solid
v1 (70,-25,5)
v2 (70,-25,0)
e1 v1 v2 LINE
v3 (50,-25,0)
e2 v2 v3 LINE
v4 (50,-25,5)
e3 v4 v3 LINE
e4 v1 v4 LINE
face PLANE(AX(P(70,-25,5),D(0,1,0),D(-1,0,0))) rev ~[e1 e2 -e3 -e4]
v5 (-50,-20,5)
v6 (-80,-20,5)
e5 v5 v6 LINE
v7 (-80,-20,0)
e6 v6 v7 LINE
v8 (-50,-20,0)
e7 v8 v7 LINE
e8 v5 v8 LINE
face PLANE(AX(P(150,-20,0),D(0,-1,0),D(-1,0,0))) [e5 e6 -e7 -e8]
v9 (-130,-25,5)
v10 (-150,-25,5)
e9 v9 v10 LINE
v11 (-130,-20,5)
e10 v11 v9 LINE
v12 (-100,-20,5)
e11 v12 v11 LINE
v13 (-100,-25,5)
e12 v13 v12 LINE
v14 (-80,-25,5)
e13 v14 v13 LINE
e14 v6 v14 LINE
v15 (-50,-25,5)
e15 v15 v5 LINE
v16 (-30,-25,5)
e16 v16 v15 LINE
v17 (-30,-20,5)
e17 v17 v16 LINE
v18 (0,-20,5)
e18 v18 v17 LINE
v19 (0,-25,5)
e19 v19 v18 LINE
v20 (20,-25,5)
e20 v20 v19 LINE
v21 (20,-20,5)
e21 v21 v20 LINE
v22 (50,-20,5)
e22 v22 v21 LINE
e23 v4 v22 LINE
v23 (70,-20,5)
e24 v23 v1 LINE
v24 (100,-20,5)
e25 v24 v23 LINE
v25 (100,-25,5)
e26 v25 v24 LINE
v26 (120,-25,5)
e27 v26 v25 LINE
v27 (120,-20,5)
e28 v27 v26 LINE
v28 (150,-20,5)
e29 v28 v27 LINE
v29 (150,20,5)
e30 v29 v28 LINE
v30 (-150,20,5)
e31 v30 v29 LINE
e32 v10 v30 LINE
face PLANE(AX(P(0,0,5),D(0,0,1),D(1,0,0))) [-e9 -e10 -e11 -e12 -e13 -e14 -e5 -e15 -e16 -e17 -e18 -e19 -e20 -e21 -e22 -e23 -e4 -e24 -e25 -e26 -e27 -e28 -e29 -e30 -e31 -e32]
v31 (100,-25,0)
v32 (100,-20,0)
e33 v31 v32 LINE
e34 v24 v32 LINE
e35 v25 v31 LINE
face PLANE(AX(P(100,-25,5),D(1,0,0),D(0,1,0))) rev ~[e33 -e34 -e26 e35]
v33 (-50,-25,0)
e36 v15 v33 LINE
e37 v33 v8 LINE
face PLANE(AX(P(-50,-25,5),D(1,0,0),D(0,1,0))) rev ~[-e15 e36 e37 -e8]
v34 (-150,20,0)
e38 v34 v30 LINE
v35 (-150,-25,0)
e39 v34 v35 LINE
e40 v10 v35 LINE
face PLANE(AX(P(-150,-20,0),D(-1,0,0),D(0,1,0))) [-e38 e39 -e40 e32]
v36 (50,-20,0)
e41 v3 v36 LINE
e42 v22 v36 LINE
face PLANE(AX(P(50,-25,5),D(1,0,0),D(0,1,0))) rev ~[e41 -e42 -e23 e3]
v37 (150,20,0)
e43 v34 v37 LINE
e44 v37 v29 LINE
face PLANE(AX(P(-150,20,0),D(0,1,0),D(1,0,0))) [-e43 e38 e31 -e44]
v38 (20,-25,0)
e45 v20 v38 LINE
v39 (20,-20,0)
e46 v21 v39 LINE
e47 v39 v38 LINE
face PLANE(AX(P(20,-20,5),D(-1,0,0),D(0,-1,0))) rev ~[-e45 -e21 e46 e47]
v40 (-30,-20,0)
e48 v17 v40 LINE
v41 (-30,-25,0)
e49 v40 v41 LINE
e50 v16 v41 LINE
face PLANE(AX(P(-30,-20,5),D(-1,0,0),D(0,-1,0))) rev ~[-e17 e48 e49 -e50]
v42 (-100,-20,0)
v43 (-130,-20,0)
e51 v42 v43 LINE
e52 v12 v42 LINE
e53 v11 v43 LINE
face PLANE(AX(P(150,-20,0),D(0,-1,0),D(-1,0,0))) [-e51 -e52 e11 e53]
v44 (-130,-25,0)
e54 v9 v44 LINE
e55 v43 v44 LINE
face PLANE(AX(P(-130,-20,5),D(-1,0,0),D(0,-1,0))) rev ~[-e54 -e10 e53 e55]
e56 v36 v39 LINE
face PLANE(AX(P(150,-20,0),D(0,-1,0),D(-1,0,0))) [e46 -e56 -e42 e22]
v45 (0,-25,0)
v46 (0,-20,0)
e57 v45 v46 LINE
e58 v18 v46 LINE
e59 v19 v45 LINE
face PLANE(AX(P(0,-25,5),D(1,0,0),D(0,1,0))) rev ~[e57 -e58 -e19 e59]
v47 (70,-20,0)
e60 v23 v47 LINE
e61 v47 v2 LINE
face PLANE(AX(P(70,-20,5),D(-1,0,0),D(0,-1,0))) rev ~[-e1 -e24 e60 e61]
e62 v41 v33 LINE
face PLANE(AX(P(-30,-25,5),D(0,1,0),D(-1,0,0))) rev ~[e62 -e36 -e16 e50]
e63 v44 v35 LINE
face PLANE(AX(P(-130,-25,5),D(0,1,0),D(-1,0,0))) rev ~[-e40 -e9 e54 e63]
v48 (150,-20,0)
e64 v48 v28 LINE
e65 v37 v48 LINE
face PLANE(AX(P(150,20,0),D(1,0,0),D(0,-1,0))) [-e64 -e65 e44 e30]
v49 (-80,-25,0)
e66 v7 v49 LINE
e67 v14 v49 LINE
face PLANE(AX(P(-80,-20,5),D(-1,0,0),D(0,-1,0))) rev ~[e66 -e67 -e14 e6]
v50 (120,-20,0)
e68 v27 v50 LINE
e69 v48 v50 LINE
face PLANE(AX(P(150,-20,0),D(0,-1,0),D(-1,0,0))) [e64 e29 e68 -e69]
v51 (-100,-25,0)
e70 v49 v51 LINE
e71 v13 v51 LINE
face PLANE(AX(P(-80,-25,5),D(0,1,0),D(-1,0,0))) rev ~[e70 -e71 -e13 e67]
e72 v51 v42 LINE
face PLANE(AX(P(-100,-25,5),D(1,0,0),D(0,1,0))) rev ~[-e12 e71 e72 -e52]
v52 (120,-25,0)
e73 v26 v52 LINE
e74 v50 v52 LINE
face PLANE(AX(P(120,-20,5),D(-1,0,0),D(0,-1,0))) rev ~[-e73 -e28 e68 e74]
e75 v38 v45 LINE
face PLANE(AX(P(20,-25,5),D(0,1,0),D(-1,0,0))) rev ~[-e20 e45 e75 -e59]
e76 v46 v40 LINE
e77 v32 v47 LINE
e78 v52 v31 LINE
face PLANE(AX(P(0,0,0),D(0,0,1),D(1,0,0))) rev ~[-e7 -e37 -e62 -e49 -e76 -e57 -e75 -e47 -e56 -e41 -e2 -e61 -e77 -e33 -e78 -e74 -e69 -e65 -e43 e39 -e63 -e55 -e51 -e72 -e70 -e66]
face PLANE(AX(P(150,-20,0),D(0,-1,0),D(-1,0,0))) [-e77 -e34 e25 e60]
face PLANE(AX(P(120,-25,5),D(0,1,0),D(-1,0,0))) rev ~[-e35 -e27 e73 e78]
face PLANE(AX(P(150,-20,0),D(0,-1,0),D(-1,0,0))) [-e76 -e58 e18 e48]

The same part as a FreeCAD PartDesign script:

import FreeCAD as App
import Part
import Sketcher
Q = App.Units.Quantity

doc = App.newDocument("Part")
body = doc.addObject("PartDesign::Body", "Body")

# Sketch on XY plane
sketch1 = body.newObject("Sketcher::SketchObject", "Sketch")
sketch1.AttachmentSupport = (doc.getObject("XY_Plane"), [""])
sketch1.MapMode = "FlatFace"
sketch1.addGeometry(Part.LineSegment(App.Vector(150, 20, 0), App.Vector(-150, 20, 0)), False)
sketch1.addGeometry(Part.LineSegment(App.Vector(-150, 20, 0), App.Vector(-150, -20, 0)), False)
sketch1.addGeometry(Part.LineSegment(App.Vector(-150, -20, 0), App.Vector(150, -20, 0)), False)
sketch1.addGeometry(Part.LineSegment(App.Vector(150, -20, 0), App.Vector(150, 20, 0)), False)
sketch1.addConstraint(Sketcher.Constraint("Coincident", 0, 2, 1, 1))
sketch1.addConstraint(Sketcher.Constraint("Coincident", 1, 2, 2, 1))
sketch1.addConstraint(Sketcher.Constraint("Coincident", 2, 2, 3, 1))
sketch1.addConstraint(Sketcher.Constraint("Coincident", 3, 2, 0, 1))
sketch1.addConstraint(Sketcher.Constraint("Horizontal", 0))
sketch1.addConstraint(Sketcher.Constraint("Vertical", 1))
sketch1.addConstraint(Sketcher.Constraint("Horizontal", 2))
sketch1.addConstraint(Sketcher.Constraint("Vertical", 3))
sketch1.addConstraint(Sketcher.Constraint("Symmetric", 0, 2, 2, 2, -1, 1))
sketch1.addConstraint(Sketcher.Constraint("DistanceX", 0, 2, 0, 1, Q("300 mm")))
sketch1.addConstraint(Sketcher.Constraint("DistanceY", 1, 2, 1, 1, Q("40 mm")))
pad1 = body.newObject("PartDesign::Pad", "Pad")
pad1.Profile = sketch1
pad1.Length = 5

# Sketch on XY plane
sketch2 = body.newObject("Sketcher::SketchObject", "Sketch001")
sketch2.AttachmentSupport = (doc.getObject("XY_Plane"), [""])
sketch2.MapMode = "FlatFace"
sketch2.AttachmentOffset = App.Placement(App.Vector(0, 0, 5), App.Rotation())
sketch2.addGeometry(Part.LineSegment(App.Vector(120, -20, 0), App.Vector(100, -20, 0)), False)
sketch2.addGeometry(Part.LineSegment(App.Vector(100, -20, 0), App.Vector(100, -25, 0)), False)
sketch2.addGeometry(Part.LineSegment(App.Vector(100, -25, 0), App.Vector(120, -25, 0)), False)
sketch2.addGeometry(Part.LineSegment(App.Vector(120, -25, 0), App.Vector(120, -20, 0)), False)
sketch2.addGeometry(Part.LineSegment(App.Vector(70, -20, 0), App.Vector(50, -20, 0)), False)
sketch2.addGeometry(Part.LineSegment(App.Vector(50, -20, 0), App.Vector(50, -25, 0)), False)
sketch2.addGeometry(Part.LineSegment(App.Vector(50, -25, 0), App.Vector(70, -25, 0)), False)
sketch2.addGeometry(Part.LineSegment(App.Vector(70, -25, 0), App.Vector(70, -20, 0)), False)
sketch2.addGeometry(Part.LineSegment(App.Vector(20, -20, 0), App.Vector(0, -20, 0)), False)
sketch2.addGeometry(Part.LineSegment(App.Vector(0, -20, 0), App.Vector(0, -25, 0)), False)
sketch2.addGeometry(Part.LineSegment(App.Vector(0, -25, 0), App.Vector(20, -25, 0)), False)
sketch2.addGeometry(Part.LineSegment(App.Vector(20, -25, 0), App.Vector(20, -20, 0)), False)
sketch2.addGeometry(Part.LineSegment(App.Vector(-30, -20, 0), App.Vector(-50, -20, 0)), False)
sketch2.addGeometry(Part.LineSegment(App.Vector(-50, -20, 0), App.Vector(-50, -25, 0)), False)
sketch2.addGeometry(Part.LineSegment(App.Vector(-50, -25, 0), App.Vector(-30, -25, 0)), False)
sketch2.addGeometry(Part.LineSegment(App.Vector(-30, -25, 0), App.Vector(-30, -20, 0)), False)
sketch2.addGeometry(Part.LineSegment(App.Vector(-80, -20, 0), App.Vector(-100, -20, 0)), False)
sketch2.addGeometry(Part.LineSegment(App.Vector(-100, -20, 0), App.Vector(-100, -25, 0)), False)
sketch2.addGeometry(Part.LineSegment(App.Vector(-100, -25, 0), App.Vector(-80, -25, 0)), False)
sketch2.addGeometry(Part.LineSegment(App.Vector(-80, -25, 0), App.Vector(-80, -20, 0)), False)
sketch2.addGeometry(Part.LineSegment(App.Vector(-130, -20, 0), App.Vector(-150, -20, 0)), False)
sketch2.addGeometry(Part.LineSegment(App.Vector(-150, -20, 0), App.Vector(-150, -25, 0)), False)
sketch2.addGeometry(Part.LineSegment(App.Vector(-150, -25, 0), App.Vector(-130, -25, 0)), False)
sketch2.addGeometry(Part.LineSegment(App.Vector(-130, -25, 0), App.Vector(-130, -20, 0)), False)
sketch2.addConstraint(Sketcher.Constraint("Coincident", 0, 2, 1, 1))
sketch2.addConstraint(Sketcher.Constraint("Coincident", 1, 2, 2, 1))
sketch2.addConstraint(Sketcher.Constraint("Coincident", 2, 2, 3, 1))
sketch2.addConstraint(Sketcher.Constraint("Coincident", 3, 2, 0, 1))
sketch2.addConstraint(Sketcher.Constraint("Coincident", 4, 2, 5, 1))
sketch2.addConstraint(Sketcher.Constraint("Coincident", 5, 2, 6, 1))
sketch2.addConstraint(Sketcher.Constraint("Coincident", 6, 2, 7, 1))
sketch2.addConstraint(Sketcher.Constraint("Coincident", 7, 2, 4, 1))
sketch2.addConstraint(Sketcher.Constraint("Coincident", 8, 2, 9, 1))
sketch2.addConstraint(Sketcher.Constraint("Coincident", 9, 2, 10, 1))
sketch2.addConstraint(Sketcher.Constraint("Coincident", 10, 2, 11, 1))
sketch2.addConstraint(Sketcher.Constraint("Coincident", 11, 2, 8, 1))
sketch2.addConstraint(Sketcher.Constraint("Coincident", 12, 2, 13, 1))
sketch2.addConstraint(Sketcher.Constraint("Coincident", 13, 2, 14, 1))
sketch2.addConstraint(Sketcher.Constraint("Coincident", 14, 2, 15, 1))
sketch2.addConstraint(Sketcher.Constraint("Coincident", 15, 2, 12, 1))
sketch2.addConstraint(Sketcher.Constraint("Coincident", 16, 2, 17, 1))
sketch2.addConstraint(Sketcher.Constraint("Coincident", 17, 2, 18, 1))
sketch2.addConstraint(Sketcher.Constraint("Coincident", 18, 2, 19, 1))
sketch2.addConstraint(Sketcher.Constraint("Coincident", 19, 2, 16, 1))
sketch2.addConstraint(Sketcher.Constraint("Coincident", 20, 2, 21, 1))
sketch2.addConstraint(Sketcher.Constraint("Coincident", 21, 2, 22, 1))
sketch2.addConstraint(Sketcher.Constraint("Coincident", 22, 2, 23, 1))
sketch2.addConstraint(Sketcher.Constraint("Coincident", 23, 2, 20, 1))
sketch2.addConstraint(Sketcher.Constraint("Horizontal", 0))
sketch2.addConstraint(Sketcher.Constraint("Vertical", 1))
sketch2.addConstraint(Sketcher.Constraint("Horizontal", 2))
sketch2.addConstraint(Sketcher.Constraint("Vertical", 3))
sketch2.addConstraint(Sketcher.Constraint("Horizontal", 4))
sketch2.addConstraint(Sketcher.Constraint("Vertical", 5))
sketch2.addConstraint(Sketcher.Constraint("Horizontal", 6))
sketch2.addConstraint(Sketcher.Constraint("Vertical", 7))
sketch2.addConstraint(Sketcher.Constraint("Horizontal", 8))
sketch2.addConstraint(Sketcher.Constraint("Vertical", 9))
sketch2.addConstraint(Sketcher.Constraint("Horizontal", 10))
sketch2.addConstraint(Sketcher.Constraint("Vertical", 11))
sketch2.addConstraint(Sketcher.Constraint("Horizontal", 12))
sketch2.addConstraint(Sketcher.Constraint("Vertical", 13))
sketch2.addConstraint(Sketcher.Constraint("Horizontal", 14))
sketch2.addConstraint(Sketcher.Constraint("Vertical", 15))
sketch2.addConstraint(Sketcher.Constraint("Horizontal", 16))
sketch2.addConstraint(Sketcher.Constraint("Vertical", 17))
sketch2.addConstraint(Sketcher.Constraint("Horizontal", 18))
sketch2.addConstraint(Sketcher.Constraint("Vertical", 19))
sketch2.addConstraint(Sketcher.Constraint("Horizontal", 20))
sketch2.addConstraint(Sketcher.Constraint("Vertical", 21))
sketch2.addConstraint(Sketcher.Constraint("Horizontal", 22))
sketch2.addConstraint(Sketcher.Constraint("Vertical", 23))
sketch2.addConstraint(Sketcher.Constraint("Symmetric", 4, 2, 12, 2, -2))
sketch2.addConstraint(Sketcher.Constraint("Symmetric", 0, 2, 16, 2, -2))
sketch2.addConstraint(Sketcher.Constraint("PointOnObject", 8, 2, -2))
sketch2.addConstraint(Sketcher.Constraint("Horizontal", 3, 2, 4, 2))
sketch2.addConstraint(Sketcher.Constraint("Horizontal", 2, 2, 5, 2))
sketch2.addConstraint(Sketcher.Constraint("Horizontal", 7, 2, 8, 2))
sketch2.addConstraint(Sketcher.Constraint("Horizontal", 6, 2, 9, 2))
sketch2.addConstraint(Sketcher.Constraint("Horizontal", 10, 2, 13, 2))
sketch2.addConstraint(Sketcher.Constraint("Horizontal", 14, 2, 17, 2))
sketch2.addConstraint(Sketcher.Constraint("Horizontal", 19, 2, 20, 2))
sketch2.addConstraint(Sketcher.Constraint("Horizontal", 18, 2, 21, 2))
sketch2.addConstraint(Sketcher.Constraint("Equal", 2, 4))
sketch2.addConstraint(Sketcher.Constraint("Equal", 6, 8))
sketch2.addConstraint(Sketcher.Constraint("Equal", 10, 12))
sketch2.addConstraint(Sketcher.Constraint("Equal", 14, 16))
sketch2.addConstraint(Sketcher.Constraint("Equal", 18, 20))
sketch2.addConstraint(Sketcher.Constraint("DistanceX", 0, 2, 0, 1, Q("20 mm")))
sketch2.addConstraint(Sketcher.Constraint("DistanceY", 1, 2, 1, 1, Q("5 mm")))
sketch2.addConstraint(Sketcher.Constraint("DistanceY", 0, 2, -1, 1, Q("20 mm")))
sketch2.addConstraint(Sketcher.Constraint("DistanceX", -1, 1, 4, 2, Q("50 mm")))
sketch2.addConstraint(Sketcher.Constraint("DistanceX", 4, 2, 0, 2, Q("50 mm")))
sketch2.addConstraint(Sketcher.Constraint("DistanceX", 20, 2, 16, 2, Q("50 mm")))
pad2 = body.newObject("PartDesign::Pad", "Pad001")
pad2.Profile = sketch2
pad2.Length = 5
pad2.Reversed = True

doc.recompute()
